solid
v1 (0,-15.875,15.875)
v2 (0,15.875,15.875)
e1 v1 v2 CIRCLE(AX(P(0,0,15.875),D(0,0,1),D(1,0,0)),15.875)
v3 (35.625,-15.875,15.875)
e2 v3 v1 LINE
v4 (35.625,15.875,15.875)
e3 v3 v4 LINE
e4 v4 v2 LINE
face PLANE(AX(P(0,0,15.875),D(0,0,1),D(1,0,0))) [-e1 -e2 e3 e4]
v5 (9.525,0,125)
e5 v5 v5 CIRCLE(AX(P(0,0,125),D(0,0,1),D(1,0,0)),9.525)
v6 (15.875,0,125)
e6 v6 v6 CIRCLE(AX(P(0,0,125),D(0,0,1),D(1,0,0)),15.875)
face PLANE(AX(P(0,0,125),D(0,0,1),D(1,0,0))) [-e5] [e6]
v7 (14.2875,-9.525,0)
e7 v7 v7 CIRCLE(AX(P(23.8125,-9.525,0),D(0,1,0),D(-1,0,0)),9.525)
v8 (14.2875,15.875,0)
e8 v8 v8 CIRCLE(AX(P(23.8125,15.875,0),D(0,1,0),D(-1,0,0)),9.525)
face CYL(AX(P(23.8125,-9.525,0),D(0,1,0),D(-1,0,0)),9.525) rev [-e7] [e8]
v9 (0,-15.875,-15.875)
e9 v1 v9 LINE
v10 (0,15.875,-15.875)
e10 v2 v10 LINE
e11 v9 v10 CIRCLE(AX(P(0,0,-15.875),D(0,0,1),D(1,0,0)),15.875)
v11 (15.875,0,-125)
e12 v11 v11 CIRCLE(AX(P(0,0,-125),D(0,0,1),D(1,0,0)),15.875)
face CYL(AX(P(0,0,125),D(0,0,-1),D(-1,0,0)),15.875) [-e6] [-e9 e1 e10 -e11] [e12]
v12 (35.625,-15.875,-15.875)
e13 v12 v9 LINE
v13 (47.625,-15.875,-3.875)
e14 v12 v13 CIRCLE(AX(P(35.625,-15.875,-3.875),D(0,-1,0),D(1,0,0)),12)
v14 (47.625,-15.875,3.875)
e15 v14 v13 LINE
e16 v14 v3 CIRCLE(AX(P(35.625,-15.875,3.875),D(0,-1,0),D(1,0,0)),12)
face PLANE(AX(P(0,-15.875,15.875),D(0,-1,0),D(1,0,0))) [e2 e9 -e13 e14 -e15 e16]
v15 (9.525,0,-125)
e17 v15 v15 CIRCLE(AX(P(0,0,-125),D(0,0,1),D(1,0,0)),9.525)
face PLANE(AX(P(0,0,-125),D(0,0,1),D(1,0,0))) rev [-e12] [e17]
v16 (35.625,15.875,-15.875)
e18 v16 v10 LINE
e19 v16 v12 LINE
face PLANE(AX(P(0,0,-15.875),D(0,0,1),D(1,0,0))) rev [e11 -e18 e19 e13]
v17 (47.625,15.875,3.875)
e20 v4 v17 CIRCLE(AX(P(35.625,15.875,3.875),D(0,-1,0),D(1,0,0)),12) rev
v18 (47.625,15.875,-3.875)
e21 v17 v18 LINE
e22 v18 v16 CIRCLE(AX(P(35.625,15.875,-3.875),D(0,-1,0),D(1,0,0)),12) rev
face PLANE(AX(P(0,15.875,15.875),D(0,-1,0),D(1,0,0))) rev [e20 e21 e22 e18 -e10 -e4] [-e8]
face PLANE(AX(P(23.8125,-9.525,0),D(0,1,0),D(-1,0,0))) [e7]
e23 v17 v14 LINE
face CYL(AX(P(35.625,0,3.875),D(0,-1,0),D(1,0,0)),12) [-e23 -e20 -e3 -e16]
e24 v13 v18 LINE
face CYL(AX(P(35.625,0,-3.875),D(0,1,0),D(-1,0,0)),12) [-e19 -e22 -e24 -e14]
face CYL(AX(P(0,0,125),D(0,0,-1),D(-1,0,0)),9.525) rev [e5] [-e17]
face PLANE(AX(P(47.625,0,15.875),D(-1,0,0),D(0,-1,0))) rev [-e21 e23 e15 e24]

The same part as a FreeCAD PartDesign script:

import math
import FreeCAD as App
import Part
import Sketcher
Q = App.Units.Quantity


def edges_at(feature, points):
    """Names of the edges that pass closest to the given points."""
    edges = feature.Shape.Edges
    near = lambda p: min(range(len(edges)), key=lambda i: edges[i].distToShape(Part.Vertex(*p))[0])
    return sorted({f"Edge{near(p) + 1}" for p in points})

doc = App.newDocument("Part")
params = doc.addObject("Spreadsheet::Sheet", "Params")
for row, (alias, value) in enumerate([
    ("sketch1_diameter", "1.25 in"),
    ("sketch1_diameter2", "0.75 in"),
    ("pad1_length", "250 mm"),
    ("sketch2_radius", "0.625 in"),
    ("sketch2_width", "1.875 in"),
    ("pad2_length", "1.25 in"),
    ("sketch3_diameter", "0.75 in"),
    ("pocket1_length", "1 in"),
    ("fillet_radius", "12 mm"),
], start=1):
    params.set(f"A{row}", alias)
    params.set(f"B{row}", "=" + value)
    params.setAlias(f"B{row}", alias)

body = doc.addObject("PartDesign::Body", "Body")

# Sketch on XY plane
sketch1 = body.newObject("Sketcher::SketchObject", "Sketch")
sketch1.AttachmentSupport = (doc.getObject("XY_Plane"), [""])
sketch1.MapMode = "FlatFace"
sketch1.addGeometry(Part.Circle(App.Vector(0, 0, 0), App.Vector(0, 0, 1), 15.875), False)
sketch1.addGeometry(Part.Circle(App.Vector(0, 0, 0), App.Vector(0, 0, 1), 9.525), False)
sketch1.addConstraint(Sketcher.Constraint("Coincident", 0, 3, -1, 1))
sketch1.addConstraint(Sketcher.Constraint("Coincident", 1, 3, -1, 1))
sketch1.addConstraint(Sketcher.Constraint("Diameter", 0, Q("1.25 in")))
sketch1.addConstraint(Sketcher.Constraint("Diameter", 1, Q("0.75 in")))
sketch1.setExpression("Constraints[2]", "Params.sketch1_diameter")
sketch1.setExpression("Constraints[3]", "Params.sketch1_diameter2")
pad1 = body.newObject("PartDesign::Pad", "Pad")
pad1.Profile = sketch1
pad1.setExpression("Length", "Params.pad1_length")
pad1.Midplane = True

# Sketch on XY plane
sketch2 = body.newObject("Sketcher::SketchObject", "Sketch001")
sketch2.AttachmentSupport = (doc.getObject("XY_Plane"), [""])
sketch2.MapMode = "FlatFace"
sketch2.addGeometry(Part.LineSegment(App.Vector(0, -15.875, 0), App.Vector(47.625, -15.875, 0)), False)
sketch2.addGeometry(Part.LineSegment(App.Vector(47.625, -15.875, 0), App.Vector(47.625, 15.875, 0)), False)
sketch2.addGeometry(Part.LineSegment(App.Vector(47.625, 15.875, 0), App.Vector(0, 15.875, 0)), False)
sketch2.addGeometry(Part.ArcOfCircle(Part.Circle(App.Vector(0, 0, 0), App.Vector(0, 0, 1), 15.875), math.radians(0), math.radians(90)), False)
sketch2.addGeometry(Part.ArcOfCircle(Part.Circle(App.Vector(0, 0, 0), App.Vector(0, 0, 1), 15.875), math.radians(-90), math.radians(0)), False)
sketch2.addConstraint(Sketcher.Constraint("Coincident", 0, 2, 1, 1))
sketch2.addConstraint(Sketcher.Constraint("Coincident", 1, 2, 2, 1))
sketch2.addConstraint(Sketcher.Constraint("Tangent", 2, 2, 3, 2))
sketch2.addConstraint(Sketcher.Constraint("Tangent", 3, 1, 4, 2))
sketch2.addConstraint(Sketcher.Constraint("Tangent", 4, 1, 0, 1))
sketch2.addConstraint(Sketcher.Constraint("Horizontal", 0))
sketch2.addConstraint(Sketcher.Constraint("Vertical", 1))
sketch2.addConstraint(Sketcher.Constraint("Horizontal", 2))
sketch2.addConstraint(Sketcher.Constraint("Coincident", 3, 3, -1, 1))
sketch2.addConstraint(Sketcher.Constraint("Equal", 3, 4))
sketch2.addConstraint(Sketcher.Constraint("PointOnObject", 3, 1, -1))
sketch2.addConstraint(Sketcher.Constraint("Radius", 3, Q("0.625 in")))
sketch2.addConstraint(Sketcher.Constraint("DistanceX", 0, 1, 0, 2, Q("1.875 in")))
sketch2.setExpression("Constraints[11]", "Params.sketch2_radius")
sketch2.setExpression("Constraints[12]", "Params.sketch2_width")
pad2 = body.newObject("PartDesign::Pad", "Pad001")
pad2.Profile = sketch2
pad2.setExpression("Length", "Params.pad2_length")
pad2.Midplane = True

# Sketch on XZ plane
sketch3 = body.newObject("Sketcher::SketchObject", "Sketch002")
sketch3.AttachmentSupport = (doc.getObject("XZ_Plane"), [""])
sketch3.MapMode = "FlatFace"
sketch3.AttachmentOffset = App.Placement(App.Vector(0, 0, -0.625 * 25.4), App.Rotation())
sketch3.addGeometry(Part.Circle(App.Vector(23.8125, 0, 0), App.Vector(0, 0, 1), 9.525), False)
sketch3.addConstraint(Sketcher.Constraint("PointOnObject", 0, 3, -1))
sketch3.addConstraint(Sketcher.Constraint("Diameter", 0, Q("0.75 in")))
sketch3.addConstraint(Sketcher.Constraint("DistanceX", -1, 1, 0, 3, Q("0.9375 in")))
sketch3.setExpression("Constraints[1]", "Params.sketch3_diameter")
pocket1 = body.newObject("PartDesign::Pocket", "Pocket")
pocket1.Profile = sketch3
pocket1.setExpression("Length", "Params.pocket1_length")
pocket1.Reversed = True
doc.recompute()

fillet = body.newObject("PartDesign::Fillet", "Fillet")
fillet.Base = (pocket1, edges_at(pocket1, [(47.625, 0, -15.875), (47.625, 0, 15.875)]))
fillet.setExpression("Radius", "Params.fillet_radius")

doc.recompute()
